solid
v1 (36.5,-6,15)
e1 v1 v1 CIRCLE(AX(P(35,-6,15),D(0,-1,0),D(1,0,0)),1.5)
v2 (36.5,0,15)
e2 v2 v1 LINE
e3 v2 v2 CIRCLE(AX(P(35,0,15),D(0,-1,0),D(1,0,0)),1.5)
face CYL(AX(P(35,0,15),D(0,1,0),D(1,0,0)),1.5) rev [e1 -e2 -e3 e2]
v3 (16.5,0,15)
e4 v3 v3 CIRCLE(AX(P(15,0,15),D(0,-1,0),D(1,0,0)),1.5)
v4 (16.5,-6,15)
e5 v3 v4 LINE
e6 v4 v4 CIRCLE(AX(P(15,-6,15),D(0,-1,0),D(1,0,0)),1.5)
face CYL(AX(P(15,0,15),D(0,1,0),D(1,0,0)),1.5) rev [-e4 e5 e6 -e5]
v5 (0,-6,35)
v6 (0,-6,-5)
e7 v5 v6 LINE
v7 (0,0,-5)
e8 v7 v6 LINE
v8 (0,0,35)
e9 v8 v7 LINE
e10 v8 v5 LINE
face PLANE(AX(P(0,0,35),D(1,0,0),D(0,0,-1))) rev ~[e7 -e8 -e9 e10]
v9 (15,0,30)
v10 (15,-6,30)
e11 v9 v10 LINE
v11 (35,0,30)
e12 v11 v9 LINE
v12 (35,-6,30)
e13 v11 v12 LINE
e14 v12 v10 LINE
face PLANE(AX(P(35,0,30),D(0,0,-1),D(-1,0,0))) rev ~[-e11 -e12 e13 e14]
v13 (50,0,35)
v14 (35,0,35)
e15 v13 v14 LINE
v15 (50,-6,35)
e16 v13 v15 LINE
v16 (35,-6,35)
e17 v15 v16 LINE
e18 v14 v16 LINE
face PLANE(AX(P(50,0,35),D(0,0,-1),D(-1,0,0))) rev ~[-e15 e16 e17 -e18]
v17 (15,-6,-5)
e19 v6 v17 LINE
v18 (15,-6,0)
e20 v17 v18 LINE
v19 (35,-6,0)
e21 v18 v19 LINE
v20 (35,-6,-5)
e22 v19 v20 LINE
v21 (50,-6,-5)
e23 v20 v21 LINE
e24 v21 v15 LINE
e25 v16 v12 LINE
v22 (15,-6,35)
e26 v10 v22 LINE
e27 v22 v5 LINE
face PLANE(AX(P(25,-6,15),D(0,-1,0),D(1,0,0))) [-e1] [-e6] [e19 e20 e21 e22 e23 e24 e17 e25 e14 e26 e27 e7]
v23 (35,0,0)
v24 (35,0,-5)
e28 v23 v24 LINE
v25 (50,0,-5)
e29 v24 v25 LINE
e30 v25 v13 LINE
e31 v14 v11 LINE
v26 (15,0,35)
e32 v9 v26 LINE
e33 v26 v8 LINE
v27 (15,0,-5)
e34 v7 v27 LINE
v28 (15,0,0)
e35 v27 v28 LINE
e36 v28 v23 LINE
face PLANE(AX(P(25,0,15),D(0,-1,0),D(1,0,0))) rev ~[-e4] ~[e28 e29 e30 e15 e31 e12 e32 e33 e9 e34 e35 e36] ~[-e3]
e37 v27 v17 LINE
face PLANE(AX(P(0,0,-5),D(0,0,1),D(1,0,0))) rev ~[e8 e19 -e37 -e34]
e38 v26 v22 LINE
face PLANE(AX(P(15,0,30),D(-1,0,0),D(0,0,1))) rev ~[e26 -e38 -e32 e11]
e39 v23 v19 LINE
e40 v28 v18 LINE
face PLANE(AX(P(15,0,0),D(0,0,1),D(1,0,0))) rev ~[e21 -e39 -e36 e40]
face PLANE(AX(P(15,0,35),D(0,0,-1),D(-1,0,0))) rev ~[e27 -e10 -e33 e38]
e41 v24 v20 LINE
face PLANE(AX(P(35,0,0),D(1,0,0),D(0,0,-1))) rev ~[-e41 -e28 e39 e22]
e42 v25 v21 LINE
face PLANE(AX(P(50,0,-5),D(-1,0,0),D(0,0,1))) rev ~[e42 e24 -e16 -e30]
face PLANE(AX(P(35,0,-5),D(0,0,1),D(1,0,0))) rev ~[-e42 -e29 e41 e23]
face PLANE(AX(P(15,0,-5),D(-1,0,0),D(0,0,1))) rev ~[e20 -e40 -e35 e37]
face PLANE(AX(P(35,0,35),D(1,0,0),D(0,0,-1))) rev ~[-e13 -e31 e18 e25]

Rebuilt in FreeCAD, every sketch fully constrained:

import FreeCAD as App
import Part
import Sketcher


def add_polygon(sketch, points):
    """Adds a closed chain of lines whose ends are joined by coincident constraints."""
    first, n = sketch.GeometryCount, len(points)
    for a, b in zip(points, points[1:] + points[:1]):
        sketch.addGeometry(Part.LineSegment(App.Vector(*a, 0), App.Vector(*b, 0)), False)
    for i in range(n):
        sketch.addConstraint(Sketcher.Constraint("Coincident", first + i, 2, first + (i + 1) % n, 1))

doc = App.newDocument("Part")
body = doc.addObject("PartDesign::Body", "Body")

# Sketch on XZ plane
sketch1 = body.newObject("Sketcher::SketchObject", "Sketch")
sketch1.AttachmentSupport = (doc.getObject("XZ_Plane"), [""])
sketch1.MapMode = "FlatFace"
add_polygon(sketch1, [(15, -5), (15, 0), (35, 0), (35, -5), (50, -5), (50, 35), (35, 35), (35, 30), (15, 30), (15, 35), (0, 35), (0, -5)])  # lines 0-11
sketch1.addGeometry(Part.Circle(App.Vector(15, 15, 0), App.Vector(0, 0, 1), 1.5), False)  # 12
sketch1.addGeometry(Part.Circle(App.Vector(35, 15, 0), App.Vector(0, 0, 1), 1.5), False)  # 13
sketch1.addConstraint(Sketcher.Constraint("Vertical", 0))
sketch1.addConstraint(Sketcher.Constraint("Horizontal", 1))
sketch1.addConstraint(Sketcher.Constraint("Vertical", 2))
sketch1.addConstraint(Sketcher.Constraint("Horizontal", 3))
sketch1.addConstraint(Sketcher.Constraint("Vertical", 4))
sketch1.addConstraint(Sketcher.Constraint("Horizontal", 5))
sketch1.addConstraint(Sketcher.Constraint("Vertical", 6))
sketch1.addConstraint(Sketcher.Constraint("Horizontal", 7))
sketch1.addConstraint(Sketcher.Constraint("Vertical", 8))
sketch1.addConstraint(Sketcher.Constraint("Horizontal", 9))
sketch1.addConstraint(Sketcher.Constraint("Vertical", 10))
sketch1.addConstraint(Sketcher.Constraint("Horizontal", 11))
sketch1.addConstraint(Sketcher.Constraint("Equal", 12, 13))
sketch1.addConstraint(Sketcher.Constraint("PointOnObject", 0, 2, -1))
sketch1.addConstraint(Sketcher.Constraint("PointOnObject", 9, 2, -2))
sketch1.addConstraint(Sketcher.Constraint("Horizontal", 12, 3, 13, 3))
sketch1.addConstraint(Sketcher.Constraint("Horizontal", 5, 2, 8, 2))
sketch1.addConstraint(Sketcher.Constraint("Horizontal", 3, 2, 10, 2))
sketch1.addConstraint(Sketcher.Constraint("Vertical", 12, 3, 0, 2))
sketch1.addConstraint(Sketcher.Constraint("Vertical", 13, 3, 1, 2))
sketch1.addConstraint(Sketcher.Constraint("Vertical", 2, 2, 5, 2))
sketch1.addConstraint(Sketcher.Constraint("Vertical", 0, 2, 7, 2))
sketch1.addConstraint(Sketcher.Constraint("Equal", 5, 9))
sketch1.addConstraint(Sketcher.Constraint("Equal", 2, 6))
sketch1.addConstraint(Sketcher.Constraint("Diameter", 12, 3.0))
sketch1.addConstraint(Sketcher.Constraint("DistanceX", 1, 1, 1, 2, 20.0))
sketch1.addConstraint(Sketcher.Constraint("DistanceX", 3, 1, 3, 2, 15.0))
sketch1.addConstraint(Sketcher.Constraint("DistanceY", 0, 1, 0, 2, 5.0))
sketch1.addConstraint(Sketcher.Constraint("DistanceY", 4, 1, 4, 2, 40.0))
sketch1.addConstraint(Sketcher.Constraint("DistanceY", -1, 1, 12, 3, 15.0))
pad1 = body.newObject("PartDesign::Pad", "Pad")
pad1.Profile = sketch1
pad1.Length = 6

doc.recompute()
